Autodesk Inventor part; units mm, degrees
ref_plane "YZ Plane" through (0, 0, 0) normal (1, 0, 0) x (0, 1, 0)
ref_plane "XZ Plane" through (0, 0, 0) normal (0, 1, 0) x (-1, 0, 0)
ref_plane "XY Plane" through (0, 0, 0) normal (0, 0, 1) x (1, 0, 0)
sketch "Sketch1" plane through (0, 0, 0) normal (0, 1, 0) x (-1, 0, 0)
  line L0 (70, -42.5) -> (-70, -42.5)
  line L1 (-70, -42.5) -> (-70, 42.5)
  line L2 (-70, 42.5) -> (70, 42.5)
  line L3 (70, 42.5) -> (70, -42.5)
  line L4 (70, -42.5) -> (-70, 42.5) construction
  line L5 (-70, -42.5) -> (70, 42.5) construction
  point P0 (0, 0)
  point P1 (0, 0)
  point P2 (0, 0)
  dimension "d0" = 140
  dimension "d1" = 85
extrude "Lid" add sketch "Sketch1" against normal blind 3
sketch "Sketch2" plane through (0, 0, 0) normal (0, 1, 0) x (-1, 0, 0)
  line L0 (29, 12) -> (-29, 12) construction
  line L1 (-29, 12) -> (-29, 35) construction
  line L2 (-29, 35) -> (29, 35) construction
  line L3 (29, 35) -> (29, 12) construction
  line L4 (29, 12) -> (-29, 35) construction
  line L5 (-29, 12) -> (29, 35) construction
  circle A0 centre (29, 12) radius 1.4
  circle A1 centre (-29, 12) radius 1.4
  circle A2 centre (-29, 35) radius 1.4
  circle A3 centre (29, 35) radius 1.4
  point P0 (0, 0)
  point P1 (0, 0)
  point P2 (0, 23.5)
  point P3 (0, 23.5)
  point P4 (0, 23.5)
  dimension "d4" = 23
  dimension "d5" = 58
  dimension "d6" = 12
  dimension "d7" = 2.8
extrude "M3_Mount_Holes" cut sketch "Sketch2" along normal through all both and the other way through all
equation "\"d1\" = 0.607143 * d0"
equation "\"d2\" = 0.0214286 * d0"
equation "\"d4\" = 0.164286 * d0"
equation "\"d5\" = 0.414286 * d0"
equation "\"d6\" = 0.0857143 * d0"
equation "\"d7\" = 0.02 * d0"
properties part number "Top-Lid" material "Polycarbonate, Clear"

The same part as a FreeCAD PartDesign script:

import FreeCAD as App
import Part
import Sketcher
from FreeCAD import Vector
Q = App.Units.Quantity

doc = App.newDocument("Part")
body = doc.addObject("PartDesign::Body", "Body")

# Sketch on XZ plane
sketch1 = body.newObject("Sketcher::SketchObject", "Sketch")
sketch1.AttachmentSupport = (doc.getObject("XZ_Plane"), [""])
sketch1.MapMode = "FlatFace"
sketch1.addGeometry(Part.LineSegment(Vector(70, -42, 0), Vector(-70, -42, 0)), False)
sketch1.addGeometry(Part.LineSegment(Vector(-70, -42, 0), Vector(-70, 42, 0)), False)
sketch1.addGeometry(Part.LineSegment(Vector(-70, 42, 0), Vector(70, 42, 0)), False)
sketch1.addGeometry(Part.LineSegment(Vector(70, 42, 0), Vector(70, -42, 0)), False)
sketch1.addConstraint(Sketcher.Constraint("Coincident", 0, 2, 1, 1))
sketch1.addConstraint(Sketcher.Constraint("Coincident", 1, 2, 2, 1))
sketch1.addConstraint(Sketcher.Constraint("Coincident", 2, 2, 3, 1))
sketch1.addConstraint(Sketcher.Constraint("Coincident", 3, 2, 0, 1))
sketch1.addConstraint(Sketcher.Constraint("Horizontal", 0))
sketch1.addConstraint(Sketcher.Constraint("Vertical", 1))
sketch1.addConstraint(Sketcher.Constraint("Horizontal", 2))
sketch1.addConstraint(Sketcher.Constraint("Vertical", 3))
sketch1.addConstraint(Sketcher.Constraint("Symmetric", 0, 2, 2, 2, -1, 1))
sketch1.addConstraint(Sketcher.Constraint("DistanceX", 0, 2, 0, 1, Q("140 mm")))
sketch1.addConstraint(Sketcher.Constraint("DistanceY", 1, 1, 1, 2, Q("85 mm")))
pad1 = body.newObject("PartDesign::Pad", "Pad")
pad1.Profile = sketch1
pad1.Length = 3

# Sketch on XZ plane
sketch2 = body.newObject("Sketcher::SketchObject", "Sketch001")
sketch2.AttachmentSupport = (doc.getObject("XZ_Plane"), [""])
sketch2.MapMode = "FlatFace"
sketch2.addGeometry(Part.Circle(Vector(-29, 12, 0), Vector(0, 0, 1), 1.4), False)
sketch2.addGeometry(Part.Circle(Vector(29, 12, 0), Vector(0, 0, 1), 1.4), False)
sketch2.addGeometry(Part.Circle(Vector(29, 35, 0), Vector(0, 0, 1), 1.4), False)
sketch2.addGeometry(Part.Circle(Vector(-29, 35, 0), Vector(0, 0, 1), 1.4), False)
sketch2.addConstraint(Sketcher.Constraint("Equal", 0, 1))
sketch2.addConstraint(Sketcher.Constraint("Equal", 1, 2))
sketch2.addConstraint(Sketcher.Constraint("Equal", 2, 3))
sketch2.addConstraint(Sketcher.Constraint("Symmetric", 0, 3, 1, 3, -2))
sketch2.addConstraint(Sketcher.Constraint("Symmetric", 2, 3, 3, 3, -2))
sketch2.addConstraint(Sketcher.Constraint("Vertical", 1, 3, 2, 3))
sketch2.addConstraint(Sketcher.Constraint("Diameter", 0, Q("2.8 mm")))
sketch2.addConstraint(Sketcher.Constraint("DistanceY", -1, 1, 0, 3, Q("12 mm")))
sketch2.addConstraint(Sketcher.Constraint("DistanceX", 0, 3, 1, 3, Q("58 mm")))
sketch2.addConstraint(Sketcher.Constraint("DistanceY", 1, 3, 2, 3, Q("23 mm")))
pocket1 = body.newObject("PartDesign::Pocket", "Pocket")
pocket1.Profile = sketch2
pocket1.Type = "ThroughAll"
pocket1.Midplane = True

doc.recompute()
